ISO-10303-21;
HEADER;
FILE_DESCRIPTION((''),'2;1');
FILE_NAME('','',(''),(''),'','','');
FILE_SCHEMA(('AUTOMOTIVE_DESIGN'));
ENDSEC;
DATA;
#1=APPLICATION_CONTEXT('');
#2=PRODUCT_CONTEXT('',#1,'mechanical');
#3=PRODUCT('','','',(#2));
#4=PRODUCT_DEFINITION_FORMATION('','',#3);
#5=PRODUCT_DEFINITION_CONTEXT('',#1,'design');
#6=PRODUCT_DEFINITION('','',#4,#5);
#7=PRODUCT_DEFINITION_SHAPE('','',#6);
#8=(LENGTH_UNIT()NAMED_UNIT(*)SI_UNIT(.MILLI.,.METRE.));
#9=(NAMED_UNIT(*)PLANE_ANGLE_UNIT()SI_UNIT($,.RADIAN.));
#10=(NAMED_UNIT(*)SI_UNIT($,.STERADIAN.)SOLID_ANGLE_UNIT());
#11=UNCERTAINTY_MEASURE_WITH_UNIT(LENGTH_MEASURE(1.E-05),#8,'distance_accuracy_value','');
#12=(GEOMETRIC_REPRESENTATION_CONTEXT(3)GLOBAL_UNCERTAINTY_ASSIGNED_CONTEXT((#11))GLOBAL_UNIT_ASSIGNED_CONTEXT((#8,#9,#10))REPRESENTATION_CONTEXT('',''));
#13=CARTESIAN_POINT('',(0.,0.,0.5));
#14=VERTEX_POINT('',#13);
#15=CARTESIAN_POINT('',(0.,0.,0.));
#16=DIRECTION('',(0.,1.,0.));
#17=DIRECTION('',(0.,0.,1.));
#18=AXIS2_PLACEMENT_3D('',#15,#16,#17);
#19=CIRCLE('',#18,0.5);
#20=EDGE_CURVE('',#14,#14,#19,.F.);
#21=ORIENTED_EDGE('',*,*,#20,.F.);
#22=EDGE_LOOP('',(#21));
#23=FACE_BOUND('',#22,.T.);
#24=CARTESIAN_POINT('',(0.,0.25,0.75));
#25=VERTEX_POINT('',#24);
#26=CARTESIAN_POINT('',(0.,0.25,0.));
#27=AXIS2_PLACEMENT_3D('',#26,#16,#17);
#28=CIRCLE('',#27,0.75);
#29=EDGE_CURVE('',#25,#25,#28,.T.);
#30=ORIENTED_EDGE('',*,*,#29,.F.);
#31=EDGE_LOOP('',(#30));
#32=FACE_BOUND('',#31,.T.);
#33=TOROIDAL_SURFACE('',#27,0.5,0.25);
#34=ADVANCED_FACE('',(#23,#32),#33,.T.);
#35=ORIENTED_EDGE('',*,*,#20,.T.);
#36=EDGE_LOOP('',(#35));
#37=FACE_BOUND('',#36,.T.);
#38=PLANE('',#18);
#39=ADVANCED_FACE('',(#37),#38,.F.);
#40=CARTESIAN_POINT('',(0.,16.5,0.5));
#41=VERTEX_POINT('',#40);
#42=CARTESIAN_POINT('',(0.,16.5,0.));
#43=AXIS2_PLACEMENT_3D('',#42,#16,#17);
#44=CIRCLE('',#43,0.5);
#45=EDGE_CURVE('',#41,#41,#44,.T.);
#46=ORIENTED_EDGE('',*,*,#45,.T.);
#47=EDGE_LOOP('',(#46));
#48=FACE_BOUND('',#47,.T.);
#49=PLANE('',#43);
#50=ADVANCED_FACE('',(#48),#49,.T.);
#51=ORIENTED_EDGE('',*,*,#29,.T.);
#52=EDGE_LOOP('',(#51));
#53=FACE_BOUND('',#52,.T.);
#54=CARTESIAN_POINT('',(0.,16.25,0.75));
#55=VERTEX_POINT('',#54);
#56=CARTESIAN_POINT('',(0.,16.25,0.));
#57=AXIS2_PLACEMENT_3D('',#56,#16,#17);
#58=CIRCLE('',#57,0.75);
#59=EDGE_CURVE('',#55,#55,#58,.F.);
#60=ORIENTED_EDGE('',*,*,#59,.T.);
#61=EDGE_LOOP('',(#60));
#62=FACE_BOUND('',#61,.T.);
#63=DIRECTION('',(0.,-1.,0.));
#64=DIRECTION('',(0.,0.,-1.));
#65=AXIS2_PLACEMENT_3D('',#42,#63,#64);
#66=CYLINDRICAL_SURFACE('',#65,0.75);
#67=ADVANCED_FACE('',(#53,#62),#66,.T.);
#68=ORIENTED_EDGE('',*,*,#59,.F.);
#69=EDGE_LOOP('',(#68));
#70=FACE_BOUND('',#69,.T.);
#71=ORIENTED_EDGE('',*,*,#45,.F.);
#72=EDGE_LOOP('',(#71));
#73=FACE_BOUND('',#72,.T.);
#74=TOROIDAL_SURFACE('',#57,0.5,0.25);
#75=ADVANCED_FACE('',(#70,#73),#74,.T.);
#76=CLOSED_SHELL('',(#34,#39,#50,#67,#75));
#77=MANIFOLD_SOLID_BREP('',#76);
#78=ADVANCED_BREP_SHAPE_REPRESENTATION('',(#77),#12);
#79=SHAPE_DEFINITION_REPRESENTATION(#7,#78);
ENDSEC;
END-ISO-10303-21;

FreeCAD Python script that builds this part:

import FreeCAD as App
import Part
import Sketcher
from FreeCAD import Vector
Q = App.Units.Quantity


def edges_at(feature, points):
    """Names of the edges that pass closest to the given points."""
    edges = feature.Shape.Edges
    near = lambda p: min(range(len(edges)), key=lambda i: edges[i].distToShape(Part.Vertex(*p))[0])
    return sorted({f"Edge{near(p) + 1}" for p in points})

doc = App.newDocument("Part")
params = doc.addObject("Spreadsheet::Sheet", "Params")
for row, (alias, value) in enumerate([
    ("sketch1_diameter", "1.5 mm"),
    ("pad1_length", "16.5 mm"),
    ("fillet_radius", "0.25 mm"),
], start=1):
    params.set(f"A{row}", alias)
    params.set(f"B{row}", "=" + value)
    params.setAlias(f"B{row}", alias)

body = doc.addObject("PartDesign::Body", "Body")

# Sketch on XZ plane
sketch1 = body.newObject("Sketcher::SketchObject", "Sketch")
sketch1.AttachmentSupport = (doc.getObject("XZ_Plane"), [""])
sketch1.MapMode = "FlatFace"
sketch1.addGeometry(Part.Circle(Vector(0, 0, 0), Vector(0, 0, 1), 0.8), False)
sketch1.addConstraint(Sketcher.Constraint("Coincident", 0, 3, -1, 1))
sketch1.addConstraint(Sketcher.Constraint("Diameter", 0, Q("1.5 mm")))
sketch1.setExpression("Constraints[1]", "Params.sketch1_diameter")
pad1 = body.newObject("PartDesign::Pad", "Pad")
pad1.Profile = sketch1
pad1.setExpression("Length", "Params.pad1_length")
pad1.Reversed = True
doc.recompute()

fillet = body.newObject("PartDesign::Fillet", "Fillet")
fillet.Base = (pad1, edges_at(pad1, [(0, 0, -0.75), (0, 16.5, -0.75)]))
fillet.setExpression("Radius", "Params.fillet_radius")

doc.recompute()
